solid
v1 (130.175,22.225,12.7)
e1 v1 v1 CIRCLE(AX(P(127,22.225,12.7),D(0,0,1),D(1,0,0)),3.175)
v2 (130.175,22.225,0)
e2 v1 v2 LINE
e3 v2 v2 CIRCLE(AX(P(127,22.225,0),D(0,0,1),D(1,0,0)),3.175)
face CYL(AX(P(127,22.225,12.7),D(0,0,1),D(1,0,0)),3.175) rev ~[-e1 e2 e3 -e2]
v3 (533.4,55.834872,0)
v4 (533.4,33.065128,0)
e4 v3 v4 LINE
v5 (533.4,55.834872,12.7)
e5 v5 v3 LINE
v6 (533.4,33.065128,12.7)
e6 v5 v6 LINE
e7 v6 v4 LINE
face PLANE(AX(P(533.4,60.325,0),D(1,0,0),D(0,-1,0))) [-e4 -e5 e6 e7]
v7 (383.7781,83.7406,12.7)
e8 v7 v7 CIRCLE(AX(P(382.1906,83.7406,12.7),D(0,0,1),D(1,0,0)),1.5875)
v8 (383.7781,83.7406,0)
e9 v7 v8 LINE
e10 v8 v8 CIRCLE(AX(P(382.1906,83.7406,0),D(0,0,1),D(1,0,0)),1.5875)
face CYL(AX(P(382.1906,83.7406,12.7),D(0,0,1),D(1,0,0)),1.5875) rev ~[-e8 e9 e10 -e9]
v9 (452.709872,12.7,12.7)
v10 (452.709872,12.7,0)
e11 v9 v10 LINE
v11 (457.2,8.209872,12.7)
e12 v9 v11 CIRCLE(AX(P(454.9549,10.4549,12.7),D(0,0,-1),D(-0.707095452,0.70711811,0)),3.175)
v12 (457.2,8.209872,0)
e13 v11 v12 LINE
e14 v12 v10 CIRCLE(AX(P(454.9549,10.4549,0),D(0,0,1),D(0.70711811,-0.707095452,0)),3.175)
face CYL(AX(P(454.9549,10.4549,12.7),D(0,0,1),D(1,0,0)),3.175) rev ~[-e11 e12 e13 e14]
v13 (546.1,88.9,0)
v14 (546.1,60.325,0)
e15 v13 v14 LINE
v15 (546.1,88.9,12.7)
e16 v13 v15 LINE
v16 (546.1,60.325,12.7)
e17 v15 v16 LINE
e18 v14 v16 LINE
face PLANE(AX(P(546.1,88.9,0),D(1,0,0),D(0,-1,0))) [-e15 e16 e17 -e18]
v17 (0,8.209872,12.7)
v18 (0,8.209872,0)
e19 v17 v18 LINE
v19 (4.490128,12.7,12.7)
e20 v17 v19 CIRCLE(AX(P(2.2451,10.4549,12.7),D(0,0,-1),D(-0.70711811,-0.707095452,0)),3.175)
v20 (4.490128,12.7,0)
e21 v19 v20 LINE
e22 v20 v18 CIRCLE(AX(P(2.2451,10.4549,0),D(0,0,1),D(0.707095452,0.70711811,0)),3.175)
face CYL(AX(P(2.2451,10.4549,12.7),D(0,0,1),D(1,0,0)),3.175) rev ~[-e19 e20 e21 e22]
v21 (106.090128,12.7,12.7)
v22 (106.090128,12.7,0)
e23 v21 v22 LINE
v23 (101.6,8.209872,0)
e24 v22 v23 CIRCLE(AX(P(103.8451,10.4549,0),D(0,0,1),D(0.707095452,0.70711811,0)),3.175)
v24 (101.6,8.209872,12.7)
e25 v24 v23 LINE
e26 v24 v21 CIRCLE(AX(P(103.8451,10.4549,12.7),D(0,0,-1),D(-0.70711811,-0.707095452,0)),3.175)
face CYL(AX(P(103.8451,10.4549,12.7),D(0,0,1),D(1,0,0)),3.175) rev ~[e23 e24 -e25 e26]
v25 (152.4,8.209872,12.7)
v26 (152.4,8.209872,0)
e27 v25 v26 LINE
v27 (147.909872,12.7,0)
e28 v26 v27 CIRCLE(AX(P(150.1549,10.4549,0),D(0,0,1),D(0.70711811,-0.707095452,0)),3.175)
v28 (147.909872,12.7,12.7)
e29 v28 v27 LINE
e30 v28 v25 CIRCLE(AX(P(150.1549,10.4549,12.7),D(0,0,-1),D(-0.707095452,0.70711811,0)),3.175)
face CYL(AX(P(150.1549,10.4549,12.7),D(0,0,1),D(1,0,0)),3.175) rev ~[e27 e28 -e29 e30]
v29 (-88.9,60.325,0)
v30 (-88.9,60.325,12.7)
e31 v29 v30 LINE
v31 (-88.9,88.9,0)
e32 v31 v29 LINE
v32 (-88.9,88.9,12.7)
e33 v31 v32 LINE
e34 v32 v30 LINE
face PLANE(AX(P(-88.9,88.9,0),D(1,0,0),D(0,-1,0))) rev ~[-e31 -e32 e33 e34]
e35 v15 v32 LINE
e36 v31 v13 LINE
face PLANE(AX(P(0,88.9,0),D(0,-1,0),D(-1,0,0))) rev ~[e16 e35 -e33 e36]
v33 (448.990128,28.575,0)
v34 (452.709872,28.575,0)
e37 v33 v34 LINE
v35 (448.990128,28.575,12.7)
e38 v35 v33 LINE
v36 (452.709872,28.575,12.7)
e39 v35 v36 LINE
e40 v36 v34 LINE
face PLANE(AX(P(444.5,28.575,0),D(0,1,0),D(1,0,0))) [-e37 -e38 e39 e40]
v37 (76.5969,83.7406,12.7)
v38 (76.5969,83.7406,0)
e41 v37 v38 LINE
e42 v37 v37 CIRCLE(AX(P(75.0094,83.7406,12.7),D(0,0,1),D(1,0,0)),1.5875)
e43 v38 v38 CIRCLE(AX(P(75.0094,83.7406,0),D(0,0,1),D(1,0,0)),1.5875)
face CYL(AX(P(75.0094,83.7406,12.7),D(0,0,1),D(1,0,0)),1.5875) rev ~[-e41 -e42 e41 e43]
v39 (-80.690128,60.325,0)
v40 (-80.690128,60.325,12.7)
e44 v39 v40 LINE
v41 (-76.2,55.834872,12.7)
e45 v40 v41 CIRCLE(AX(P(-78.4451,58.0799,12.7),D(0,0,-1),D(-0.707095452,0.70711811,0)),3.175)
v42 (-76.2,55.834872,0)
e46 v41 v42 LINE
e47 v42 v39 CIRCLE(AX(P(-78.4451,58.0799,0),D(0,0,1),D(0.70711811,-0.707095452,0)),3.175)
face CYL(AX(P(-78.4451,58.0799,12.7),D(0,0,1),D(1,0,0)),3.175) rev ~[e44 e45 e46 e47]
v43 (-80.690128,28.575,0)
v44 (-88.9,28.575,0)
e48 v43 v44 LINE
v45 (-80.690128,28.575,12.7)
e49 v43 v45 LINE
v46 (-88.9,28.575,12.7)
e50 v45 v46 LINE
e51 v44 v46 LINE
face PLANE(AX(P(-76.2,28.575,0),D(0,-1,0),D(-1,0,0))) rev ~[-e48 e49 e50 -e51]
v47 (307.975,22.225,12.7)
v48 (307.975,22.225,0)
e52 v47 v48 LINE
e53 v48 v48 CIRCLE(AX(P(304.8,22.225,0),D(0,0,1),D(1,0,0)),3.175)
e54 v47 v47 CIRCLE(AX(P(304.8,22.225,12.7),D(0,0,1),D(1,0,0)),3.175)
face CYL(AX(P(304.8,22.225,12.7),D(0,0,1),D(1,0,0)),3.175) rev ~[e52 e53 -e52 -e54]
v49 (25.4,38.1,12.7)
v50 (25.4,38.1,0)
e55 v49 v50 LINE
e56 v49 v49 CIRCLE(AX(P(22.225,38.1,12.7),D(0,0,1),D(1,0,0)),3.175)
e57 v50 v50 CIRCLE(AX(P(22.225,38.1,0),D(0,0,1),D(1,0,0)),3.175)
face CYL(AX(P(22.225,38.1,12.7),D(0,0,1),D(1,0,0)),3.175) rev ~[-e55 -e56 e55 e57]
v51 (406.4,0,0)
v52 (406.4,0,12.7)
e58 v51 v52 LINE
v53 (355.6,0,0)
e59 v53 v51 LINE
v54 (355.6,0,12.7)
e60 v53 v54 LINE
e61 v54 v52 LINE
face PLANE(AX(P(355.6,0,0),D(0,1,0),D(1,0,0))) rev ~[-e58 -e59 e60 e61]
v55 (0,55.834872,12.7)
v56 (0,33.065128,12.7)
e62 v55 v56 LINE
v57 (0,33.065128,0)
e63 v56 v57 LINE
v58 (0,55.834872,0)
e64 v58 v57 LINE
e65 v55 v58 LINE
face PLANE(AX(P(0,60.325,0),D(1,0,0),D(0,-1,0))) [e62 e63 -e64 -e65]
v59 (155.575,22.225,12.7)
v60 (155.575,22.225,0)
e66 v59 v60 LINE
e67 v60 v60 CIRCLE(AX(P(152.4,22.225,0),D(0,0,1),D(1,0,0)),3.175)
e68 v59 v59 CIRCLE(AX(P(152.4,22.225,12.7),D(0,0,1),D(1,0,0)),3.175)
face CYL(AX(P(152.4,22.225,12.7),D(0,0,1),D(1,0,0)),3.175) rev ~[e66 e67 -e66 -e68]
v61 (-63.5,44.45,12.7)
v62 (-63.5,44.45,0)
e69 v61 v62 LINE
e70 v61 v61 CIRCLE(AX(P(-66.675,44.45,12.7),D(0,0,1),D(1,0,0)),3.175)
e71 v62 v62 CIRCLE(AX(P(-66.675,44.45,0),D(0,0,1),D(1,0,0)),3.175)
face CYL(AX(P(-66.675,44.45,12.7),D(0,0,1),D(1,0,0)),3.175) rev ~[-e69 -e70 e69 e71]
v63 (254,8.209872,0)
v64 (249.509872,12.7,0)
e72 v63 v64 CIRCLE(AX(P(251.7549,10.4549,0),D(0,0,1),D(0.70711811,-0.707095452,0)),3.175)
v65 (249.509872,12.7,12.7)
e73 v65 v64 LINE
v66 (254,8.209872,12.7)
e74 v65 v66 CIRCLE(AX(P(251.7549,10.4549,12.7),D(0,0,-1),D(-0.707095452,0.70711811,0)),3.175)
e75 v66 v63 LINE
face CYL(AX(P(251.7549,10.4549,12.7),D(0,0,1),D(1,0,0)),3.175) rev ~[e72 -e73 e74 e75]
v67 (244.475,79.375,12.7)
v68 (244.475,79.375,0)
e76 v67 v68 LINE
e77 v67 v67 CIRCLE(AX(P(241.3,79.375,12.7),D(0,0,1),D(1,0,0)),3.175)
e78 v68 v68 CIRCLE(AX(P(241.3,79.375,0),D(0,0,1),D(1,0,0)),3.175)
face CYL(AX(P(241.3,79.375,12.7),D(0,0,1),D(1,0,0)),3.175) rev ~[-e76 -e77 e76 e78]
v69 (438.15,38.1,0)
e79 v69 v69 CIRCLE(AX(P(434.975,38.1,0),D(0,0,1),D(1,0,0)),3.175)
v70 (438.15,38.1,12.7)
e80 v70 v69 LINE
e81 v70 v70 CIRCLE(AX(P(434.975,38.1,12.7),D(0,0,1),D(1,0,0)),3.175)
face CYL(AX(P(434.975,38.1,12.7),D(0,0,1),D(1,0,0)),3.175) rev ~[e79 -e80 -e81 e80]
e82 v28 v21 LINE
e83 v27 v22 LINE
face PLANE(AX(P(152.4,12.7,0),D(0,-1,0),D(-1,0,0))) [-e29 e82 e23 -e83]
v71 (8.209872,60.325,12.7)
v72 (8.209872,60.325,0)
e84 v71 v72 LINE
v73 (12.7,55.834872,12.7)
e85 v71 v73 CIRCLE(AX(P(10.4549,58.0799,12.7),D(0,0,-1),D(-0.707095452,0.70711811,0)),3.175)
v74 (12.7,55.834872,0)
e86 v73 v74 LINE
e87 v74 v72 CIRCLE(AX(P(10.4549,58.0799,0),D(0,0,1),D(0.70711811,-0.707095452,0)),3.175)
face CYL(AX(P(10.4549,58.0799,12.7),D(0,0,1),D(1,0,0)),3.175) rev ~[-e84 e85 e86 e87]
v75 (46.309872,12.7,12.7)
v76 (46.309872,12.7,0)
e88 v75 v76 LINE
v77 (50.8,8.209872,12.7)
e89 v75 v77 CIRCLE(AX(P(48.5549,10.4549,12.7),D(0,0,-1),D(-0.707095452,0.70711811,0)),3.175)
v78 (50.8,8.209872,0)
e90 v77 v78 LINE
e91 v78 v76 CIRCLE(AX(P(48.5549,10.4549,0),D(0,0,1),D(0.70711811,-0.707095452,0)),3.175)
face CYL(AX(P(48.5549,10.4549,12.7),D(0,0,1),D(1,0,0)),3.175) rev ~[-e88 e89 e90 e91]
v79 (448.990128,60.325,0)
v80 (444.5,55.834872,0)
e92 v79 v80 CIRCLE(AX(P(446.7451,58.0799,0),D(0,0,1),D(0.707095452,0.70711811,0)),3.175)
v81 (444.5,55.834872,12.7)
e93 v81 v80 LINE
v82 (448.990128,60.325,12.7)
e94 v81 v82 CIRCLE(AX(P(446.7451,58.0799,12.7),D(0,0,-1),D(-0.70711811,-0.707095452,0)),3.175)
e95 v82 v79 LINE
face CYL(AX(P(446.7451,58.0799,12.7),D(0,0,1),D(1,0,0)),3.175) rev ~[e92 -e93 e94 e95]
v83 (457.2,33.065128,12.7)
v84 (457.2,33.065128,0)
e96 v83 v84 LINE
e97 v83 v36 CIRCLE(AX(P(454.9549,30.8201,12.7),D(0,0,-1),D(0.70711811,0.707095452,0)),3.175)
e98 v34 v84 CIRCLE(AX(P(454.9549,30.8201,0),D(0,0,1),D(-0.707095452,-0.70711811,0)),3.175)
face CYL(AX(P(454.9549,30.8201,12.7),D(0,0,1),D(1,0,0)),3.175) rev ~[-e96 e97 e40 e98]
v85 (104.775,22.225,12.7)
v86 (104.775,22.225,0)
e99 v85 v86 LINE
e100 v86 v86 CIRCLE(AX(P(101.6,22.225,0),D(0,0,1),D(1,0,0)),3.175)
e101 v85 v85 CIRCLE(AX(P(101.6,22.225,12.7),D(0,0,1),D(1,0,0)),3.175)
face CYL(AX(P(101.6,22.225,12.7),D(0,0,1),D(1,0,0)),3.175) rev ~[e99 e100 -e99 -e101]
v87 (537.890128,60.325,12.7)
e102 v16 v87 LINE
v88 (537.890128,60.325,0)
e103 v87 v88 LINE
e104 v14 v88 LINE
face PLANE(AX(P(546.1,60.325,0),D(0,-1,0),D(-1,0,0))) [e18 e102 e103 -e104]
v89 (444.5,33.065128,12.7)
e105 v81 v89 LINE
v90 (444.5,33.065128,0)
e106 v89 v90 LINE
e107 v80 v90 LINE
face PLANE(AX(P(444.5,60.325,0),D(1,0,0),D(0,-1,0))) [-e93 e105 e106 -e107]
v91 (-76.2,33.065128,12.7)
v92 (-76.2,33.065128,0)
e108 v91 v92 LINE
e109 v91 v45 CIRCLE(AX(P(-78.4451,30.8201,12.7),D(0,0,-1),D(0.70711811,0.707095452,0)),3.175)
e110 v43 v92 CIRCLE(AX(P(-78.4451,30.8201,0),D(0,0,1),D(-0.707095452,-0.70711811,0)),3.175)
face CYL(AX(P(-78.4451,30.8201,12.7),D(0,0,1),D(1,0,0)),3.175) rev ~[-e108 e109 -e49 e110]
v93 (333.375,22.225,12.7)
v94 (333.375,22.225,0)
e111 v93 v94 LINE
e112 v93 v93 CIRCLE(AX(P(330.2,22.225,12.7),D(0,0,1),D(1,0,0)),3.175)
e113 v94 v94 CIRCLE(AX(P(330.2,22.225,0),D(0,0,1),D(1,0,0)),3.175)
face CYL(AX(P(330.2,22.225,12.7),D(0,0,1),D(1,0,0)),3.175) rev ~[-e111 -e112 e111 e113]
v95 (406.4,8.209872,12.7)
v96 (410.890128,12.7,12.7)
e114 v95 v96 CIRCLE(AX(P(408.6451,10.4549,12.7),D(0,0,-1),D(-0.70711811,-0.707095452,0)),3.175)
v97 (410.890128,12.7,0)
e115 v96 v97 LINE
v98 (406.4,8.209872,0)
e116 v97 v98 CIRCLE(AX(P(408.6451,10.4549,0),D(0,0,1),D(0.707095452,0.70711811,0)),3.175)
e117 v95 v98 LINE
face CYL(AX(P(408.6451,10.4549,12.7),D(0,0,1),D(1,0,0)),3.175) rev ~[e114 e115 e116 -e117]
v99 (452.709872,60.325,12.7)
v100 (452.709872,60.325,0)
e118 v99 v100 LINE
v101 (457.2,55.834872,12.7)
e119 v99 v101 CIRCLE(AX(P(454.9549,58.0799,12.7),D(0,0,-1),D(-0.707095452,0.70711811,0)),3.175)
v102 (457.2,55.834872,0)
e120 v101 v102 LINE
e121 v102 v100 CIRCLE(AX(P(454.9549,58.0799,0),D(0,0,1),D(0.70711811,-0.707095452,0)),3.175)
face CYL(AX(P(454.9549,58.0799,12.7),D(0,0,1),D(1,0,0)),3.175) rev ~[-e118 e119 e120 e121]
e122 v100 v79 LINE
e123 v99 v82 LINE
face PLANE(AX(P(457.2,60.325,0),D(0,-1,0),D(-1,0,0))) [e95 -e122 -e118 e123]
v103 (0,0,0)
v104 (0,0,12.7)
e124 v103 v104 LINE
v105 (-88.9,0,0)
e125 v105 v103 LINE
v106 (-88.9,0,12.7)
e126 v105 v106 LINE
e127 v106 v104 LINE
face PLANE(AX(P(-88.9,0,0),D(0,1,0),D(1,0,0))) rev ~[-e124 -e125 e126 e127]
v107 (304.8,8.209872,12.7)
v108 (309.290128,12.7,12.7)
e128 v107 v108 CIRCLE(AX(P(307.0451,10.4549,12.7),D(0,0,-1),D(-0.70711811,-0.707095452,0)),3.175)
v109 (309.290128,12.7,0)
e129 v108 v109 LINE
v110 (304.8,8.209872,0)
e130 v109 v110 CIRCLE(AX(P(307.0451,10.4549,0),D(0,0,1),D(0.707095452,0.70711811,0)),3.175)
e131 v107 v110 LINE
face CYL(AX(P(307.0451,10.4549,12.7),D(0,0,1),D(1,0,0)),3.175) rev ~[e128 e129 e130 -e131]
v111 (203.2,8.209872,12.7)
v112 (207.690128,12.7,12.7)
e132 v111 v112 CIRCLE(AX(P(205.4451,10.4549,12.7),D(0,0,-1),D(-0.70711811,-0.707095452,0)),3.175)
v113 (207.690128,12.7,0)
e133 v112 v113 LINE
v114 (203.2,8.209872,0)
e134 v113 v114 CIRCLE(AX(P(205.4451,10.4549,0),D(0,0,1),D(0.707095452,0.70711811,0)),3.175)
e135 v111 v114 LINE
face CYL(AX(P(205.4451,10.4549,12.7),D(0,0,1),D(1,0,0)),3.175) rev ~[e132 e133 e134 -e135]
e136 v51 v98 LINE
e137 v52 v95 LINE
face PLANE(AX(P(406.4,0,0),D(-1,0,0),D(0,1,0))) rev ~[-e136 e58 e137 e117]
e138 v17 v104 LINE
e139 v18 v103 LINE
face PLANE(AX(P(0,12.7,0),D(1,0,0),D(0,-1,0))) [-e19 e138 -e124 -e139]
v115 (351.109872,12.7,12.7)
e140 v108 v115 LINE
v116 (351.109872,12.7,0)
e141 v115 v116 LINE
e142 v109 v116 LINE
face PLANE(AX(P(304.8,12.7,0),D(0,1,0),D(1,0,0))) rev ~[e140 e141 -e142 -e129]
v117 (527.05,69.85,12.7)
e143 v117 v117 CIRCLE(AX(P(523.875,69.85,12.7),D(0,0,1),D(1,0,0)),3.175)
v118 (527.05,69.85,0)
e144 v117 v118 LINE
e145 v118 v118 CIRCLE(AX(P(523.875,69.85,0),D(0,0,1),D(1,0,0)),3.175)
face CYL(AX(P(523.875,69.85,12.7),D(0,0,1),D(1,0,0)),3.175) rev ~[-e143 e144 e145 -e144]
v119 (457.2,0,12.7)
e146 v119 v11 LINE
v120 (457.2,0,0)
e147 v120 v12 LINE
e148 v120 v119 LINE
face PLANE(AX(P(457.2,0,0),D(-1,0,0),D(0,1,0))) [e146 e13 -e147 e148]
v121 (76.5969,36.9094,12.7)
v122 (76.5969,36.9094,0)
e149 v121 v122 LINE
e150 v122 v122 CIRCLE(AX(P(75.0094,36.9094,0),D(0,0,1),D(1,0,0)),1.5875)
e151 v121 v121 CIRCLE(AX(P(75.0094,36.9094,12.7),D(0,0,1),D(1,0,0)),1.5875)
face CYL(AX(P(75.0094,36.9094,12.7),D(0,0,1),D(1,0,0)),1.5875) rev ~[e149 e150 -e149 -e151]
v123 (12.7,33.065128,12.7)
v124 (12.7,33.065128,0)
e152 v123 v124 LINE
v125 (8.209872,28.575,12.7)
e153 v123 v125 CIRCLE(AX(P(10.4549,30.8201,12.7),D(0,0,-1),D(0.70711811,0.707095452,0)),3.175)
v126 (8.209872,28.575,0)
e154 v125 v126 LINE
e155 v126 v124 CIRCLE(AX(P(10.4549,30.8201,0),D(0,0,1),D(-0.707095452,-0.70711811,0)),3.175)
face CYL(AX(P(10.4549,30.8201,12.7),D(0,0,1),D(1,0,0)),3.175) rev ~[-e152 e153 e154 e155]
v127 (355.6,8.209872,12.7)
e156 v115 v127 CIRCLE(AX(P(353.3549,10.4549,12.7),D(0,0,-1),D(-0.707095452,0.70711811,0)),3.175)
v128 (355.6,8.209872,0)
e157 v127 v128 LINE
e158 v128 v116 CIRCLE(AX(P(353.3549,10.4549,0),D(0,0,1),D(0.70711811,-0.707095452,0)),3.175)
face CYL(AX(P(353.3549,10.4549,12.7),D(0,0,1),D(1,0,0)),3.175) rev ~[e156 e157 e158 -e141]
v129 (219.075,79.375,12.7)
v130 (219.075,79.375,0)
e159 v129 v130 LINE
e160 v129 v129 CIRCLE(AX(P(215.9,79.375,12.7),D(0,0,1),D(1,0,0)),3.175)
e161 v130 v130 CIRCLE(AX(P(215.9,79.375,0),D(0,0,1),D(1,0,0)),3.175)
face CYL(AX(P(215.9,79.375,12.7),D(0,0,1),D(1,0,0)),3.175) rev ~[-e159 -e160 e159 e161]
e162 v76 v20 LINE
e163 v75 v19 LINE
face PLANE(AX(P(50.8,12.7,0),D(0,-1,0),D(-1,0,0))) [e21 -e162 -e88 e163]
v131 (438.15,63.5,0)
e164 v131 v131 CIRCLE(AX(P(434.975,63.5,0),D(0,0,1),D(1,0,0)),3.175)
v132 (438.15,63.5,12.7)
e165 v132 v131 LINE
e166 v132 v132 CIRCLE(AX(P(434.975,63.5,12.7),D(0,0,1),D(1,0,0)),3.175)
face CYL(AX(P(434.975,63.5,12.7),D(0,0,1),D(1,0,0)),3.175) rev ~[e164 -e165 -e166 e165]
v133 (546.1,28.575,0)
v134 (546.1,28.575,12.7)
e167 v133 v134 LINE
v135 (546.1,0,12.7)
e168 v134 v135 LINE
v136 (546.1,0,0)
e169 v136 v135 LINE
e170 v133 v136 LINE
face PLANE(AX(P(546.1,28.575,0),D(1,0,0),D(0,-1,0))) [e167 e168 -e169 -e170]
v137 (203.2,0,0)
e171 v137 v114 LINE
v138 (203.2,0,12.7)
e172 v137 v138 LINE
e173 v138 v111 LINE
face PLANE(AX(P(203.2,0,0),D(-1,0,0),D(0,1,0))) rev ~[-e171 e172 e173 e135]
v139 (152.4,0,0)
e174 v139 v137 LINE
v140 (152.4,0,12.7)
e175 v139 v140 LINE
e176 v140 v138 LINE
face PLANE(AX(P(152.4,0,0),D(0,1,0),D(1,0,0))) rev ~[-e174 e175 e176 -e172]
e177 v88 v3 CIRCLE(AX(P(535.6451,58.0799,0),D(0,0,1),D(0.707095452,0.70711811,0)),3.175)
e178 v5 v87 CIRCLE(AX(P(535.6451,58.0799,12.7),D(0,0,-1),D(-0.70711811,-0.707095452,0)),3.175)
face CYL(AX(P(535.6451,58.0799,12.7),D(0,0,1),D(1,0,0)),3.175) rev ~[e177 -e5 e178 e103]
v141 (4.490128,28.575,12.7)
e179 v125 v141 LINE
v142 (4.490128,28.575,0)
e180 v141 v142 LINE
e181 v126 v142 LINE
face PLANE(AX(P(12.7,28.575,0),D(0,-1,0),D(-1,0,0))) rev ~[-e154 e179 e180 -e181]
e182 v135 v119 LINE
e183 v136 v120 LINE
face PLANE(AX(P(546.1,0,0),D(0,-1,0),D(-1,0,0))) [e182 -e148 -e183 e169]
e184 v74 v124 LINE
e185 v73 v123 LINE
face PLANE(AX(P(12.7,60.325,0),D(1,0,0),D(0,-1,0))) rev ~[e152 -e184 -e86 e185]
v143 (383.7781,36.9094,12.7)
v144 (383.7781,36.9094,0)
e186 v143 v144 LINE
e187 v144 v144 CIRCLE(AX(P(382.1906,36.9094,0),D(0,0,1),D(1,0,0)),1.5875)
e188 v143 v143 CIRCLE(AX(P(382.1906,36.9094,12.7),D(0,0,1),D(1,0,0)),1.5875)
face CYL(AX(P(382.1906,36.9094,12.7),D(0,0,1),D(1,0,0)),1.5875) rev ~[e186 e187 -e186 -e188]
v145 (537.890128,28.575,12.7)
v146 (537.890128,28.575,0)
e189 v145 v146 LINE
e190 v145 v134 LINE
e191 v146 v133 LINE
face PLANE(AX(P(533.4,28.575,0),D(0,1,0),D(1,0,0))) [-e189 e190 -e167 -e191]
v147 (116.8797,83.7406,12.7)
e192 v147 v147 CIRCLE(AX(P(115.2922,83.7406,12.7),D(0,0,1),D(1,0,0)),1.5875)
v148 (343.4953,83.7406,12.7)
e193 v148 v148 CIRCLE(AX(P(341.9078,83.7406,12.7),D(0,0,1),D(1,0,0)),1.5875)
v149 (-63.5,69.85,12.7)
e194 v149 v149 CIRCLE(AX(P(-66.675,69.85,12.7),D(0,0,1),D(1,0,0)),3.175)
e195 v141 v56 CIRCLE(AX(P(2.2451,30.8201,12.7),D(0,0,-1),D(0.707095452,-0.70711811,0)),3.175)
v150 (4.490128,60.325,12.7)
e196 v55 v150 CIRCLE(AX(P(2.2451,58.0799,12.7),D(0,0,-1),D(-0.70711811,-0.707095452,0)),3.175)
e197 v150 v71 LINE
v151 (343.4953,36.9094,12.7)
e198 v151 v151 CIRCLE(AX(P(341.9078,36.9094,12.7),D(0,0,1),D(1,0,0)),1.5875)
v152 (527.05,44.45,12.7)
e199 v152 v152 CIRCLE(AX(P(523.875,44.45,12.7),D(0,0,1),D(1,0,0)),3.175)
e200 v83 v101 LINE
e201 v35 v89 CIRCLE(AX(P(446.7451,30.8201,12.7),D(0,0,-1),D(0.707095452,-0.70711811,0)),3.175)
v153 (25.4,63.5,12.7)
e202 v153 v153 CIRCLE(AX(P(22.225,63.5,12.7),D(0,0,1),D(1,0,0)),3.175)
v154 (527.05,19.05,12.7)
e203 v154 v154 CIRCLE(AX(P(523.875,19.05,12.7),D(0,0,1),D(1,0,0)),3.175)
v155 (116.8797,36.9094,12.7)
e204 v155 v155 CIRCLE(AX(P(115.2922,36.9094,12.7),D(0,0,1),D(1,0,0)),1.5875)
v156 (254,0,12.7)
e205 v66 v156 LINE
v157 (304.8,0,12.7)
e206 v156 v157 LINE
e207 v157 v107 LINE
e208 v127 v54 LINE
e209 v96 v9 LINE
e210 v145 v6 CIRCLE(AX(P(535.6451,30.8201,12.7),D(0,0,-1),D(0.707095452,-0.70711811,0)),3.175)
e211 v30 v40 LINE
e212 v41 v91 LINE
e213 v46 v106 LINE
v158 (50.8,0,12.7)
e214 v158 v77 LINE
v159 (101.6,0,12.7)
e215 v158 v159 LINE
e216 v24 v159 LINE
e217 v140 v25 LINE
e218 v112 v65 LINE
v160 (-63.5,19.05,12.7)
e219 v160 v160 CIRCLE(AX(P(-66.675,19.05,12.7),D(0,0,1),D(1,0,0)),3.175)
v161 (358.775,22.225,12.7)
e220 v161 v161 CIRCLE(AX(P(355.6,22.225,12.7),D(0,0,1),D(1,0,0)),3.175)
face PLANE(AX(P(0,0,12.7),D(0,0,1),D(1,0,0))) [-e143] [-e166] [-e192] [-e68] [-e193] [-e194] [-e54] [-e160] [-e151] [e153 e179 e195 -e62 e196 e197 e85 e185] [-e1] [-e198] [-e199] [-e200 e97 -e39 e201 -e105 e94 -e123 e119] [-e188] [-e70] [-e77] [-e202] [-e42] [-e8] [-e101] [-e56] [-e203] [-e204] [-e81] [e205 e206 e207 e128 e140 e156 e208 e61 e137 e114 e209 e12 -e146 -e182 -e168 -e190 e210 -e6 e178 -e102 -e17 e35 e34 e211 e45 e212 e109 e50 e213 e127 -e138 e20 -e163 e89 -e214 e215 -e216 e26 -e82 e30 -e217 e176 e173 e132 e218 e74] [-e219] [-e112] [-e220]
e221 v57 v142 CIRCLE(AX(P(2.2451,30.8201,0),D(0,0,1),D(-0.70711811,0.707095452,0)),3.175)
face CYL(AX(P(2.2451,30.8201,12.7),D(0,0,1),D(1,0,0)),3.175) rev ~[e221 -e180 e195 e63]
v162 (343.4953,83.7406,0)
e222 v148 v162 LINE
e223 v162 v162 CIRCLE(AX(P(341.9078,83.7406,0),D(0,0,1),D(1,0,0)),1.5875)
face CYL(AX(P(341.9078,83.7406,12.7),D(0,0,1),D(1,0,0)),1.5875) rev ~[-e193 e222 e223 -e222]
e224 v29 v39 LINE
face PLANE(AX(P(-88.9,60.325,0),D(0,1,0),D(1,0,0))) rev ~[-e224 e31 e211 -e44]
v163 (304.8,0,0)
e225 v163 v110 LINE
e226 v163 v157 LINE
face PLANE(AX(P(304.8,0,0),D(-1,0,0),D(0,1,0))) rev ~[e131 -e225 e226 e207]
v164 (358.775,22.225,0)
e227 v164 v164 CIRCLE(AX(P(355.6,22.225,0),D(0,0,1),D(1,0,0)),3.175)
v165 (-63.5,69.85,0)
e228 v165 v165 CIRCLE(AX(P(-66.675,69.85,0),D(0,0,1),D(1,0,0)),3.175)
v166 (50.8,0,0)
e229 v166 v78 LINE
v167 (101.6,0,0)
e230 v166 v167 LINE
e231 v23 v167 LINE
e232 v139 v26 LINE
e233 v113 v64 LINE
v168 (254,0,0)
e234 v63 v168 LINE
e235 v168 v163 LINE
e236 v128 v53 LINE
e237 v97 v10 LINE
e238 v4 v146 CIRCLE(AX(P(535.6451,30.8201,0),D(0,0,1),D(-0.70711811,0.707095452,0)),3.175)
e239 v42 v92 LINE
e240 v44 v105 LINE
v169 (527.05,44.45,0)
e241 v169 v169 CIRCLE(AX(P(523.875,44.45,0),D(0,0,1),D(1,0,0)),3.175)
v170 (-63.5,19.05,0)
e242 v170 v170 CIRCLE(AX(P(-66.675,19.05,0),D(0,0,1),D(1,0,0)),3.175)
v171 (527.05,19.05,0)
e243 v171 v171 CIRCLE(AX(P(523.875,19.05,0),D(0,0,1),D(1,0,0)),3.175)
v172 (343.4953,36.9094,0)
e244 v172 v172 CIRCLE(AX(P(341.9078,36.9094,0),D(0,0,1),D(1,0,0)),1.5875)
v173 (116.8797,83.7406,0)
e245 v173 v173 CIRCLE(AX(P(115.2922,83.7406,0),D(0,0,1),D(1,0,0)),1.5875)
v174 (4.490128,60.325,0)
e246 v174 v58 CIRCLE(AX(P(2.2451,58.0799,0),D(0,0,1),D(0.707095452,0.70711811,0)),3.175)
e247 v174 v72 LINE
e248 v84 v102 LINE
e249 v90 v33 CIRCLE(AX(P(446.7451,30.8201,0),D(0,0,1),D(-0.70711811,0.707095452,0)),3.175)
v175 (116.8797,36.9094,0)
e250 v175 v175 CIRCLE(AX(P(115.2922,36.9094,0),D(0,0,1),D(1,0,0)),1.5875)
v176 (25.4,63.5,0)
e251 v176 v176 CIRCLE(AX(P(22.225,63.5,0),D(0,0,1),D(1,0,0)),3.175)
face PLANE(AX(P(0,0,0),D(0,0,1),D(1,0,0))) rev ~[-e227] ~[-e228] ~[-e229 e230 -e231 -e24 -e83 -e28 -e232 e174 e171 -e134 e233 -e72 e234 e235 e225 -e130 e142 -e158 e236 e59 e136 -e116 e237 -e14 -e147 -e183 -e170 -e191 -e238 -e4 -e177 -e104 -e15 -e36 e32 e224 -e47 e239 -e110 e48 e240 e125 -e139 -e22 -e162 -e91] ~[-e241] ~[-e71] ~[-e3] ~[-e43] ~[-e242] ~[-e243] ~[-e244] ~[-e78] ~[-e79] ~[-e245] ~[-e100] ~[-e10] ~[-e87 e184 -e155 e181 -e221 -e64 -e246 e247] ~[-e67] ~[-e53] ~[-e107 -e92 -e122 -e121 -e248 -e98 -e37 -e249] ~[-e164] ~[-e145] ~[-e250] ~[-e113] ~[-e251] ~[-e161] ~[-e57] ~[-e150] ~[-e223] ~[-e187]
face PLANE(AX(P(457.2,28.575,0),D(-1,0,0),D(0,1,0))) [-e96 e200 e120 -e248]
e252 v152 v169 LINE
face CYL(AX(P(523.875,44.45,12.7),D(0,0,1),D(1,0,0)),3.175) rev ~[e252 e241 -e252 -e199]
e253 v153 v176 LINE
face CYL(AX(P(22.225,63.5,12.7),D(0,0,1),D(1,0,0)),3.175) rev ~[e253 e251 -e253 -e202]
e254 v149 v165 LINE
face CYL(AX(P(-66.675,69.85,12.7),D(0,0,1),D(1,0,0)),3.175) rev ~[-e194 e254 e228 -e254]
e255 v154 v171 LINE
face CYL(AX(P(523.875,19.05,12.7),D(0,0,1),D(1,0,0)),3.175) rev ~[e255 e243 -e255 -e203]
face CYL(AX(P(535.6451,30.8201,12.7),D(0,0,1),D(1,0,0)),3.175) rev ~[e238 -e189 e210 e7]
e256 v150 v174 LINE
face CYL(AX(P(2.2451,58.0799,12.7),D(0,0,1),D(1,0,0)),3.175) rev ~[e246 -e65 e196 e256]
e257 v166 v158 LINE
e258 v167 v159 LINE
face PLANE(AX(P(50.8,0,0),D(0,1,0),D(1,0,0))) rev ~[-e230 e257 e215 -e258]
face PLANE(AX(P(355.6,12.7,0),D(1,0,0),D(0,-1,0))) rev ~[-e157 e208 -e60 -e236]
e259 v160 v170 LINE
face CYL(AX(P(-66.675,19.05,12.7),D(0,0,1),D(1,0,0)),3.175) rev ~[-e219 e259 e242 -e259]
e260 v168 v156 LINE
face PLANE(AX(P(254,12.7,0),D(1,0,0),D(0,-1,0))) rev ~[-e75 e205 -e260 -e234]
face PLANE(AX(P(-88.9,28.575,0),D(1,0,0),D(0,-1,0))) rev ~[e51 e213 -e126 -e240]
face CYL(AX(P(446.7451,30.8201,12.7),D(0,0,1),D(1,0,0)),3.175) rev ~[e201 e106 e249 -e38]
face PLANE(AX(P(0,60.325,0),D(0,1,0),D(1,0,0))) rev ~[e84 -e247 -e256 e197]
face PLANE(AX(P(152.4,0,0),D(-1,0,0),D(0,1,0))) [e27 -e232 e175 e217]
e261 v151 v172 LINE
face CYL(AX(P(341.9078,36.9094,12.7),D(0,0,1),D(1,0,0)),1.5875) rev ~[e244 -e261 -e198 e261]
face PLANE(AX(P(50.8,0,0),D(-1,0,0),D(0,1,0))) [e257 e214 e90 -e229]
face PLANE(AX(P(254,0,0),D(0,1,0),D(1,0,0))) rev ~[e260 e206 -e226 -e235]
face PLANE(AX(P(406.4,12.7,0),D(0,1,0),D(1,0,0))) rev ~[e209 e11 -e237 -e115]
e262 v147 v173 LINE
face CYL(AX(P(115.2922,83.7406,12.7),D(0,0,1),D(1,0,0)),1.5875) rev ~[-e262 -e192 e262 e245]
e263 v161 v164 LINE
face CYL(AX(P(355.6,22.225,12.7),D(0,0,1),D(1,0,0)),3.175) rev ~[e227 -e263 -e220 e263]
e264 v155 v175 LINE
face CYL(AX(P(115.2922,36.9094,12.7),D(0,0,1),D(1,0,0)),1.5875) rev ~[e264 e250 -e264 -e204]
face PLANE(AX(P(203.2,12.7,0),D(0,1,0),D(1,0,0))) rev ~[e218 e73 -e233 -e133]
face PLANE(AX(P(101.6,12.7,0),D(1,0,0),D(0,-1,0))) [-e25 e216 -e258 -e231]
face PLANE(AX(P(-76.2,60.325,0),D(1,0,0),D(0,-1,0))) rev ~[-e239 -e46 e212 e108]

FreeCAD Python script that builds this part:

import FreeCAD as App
import Part
import Sketcher
Q = App.Units.Quantity


def add_polygon(sketch, points):
    """Adds a closed chain of lines whose ends are joined by coincident constraints."""
    first, n = sketch.GeometryCount, len(points)
    for a, b in zip(points, points[1:] + points[:1]):
        sketch.addGeometry(Part.LineSegment(App.Vector(*a, 0), App.Vector(*b, 0)), False)
    for i in range(n):
        sketch.addConstraint(Sketcher.Constraint("Coincident", first + i, 2, first + (i + 1) % n, 1))

doc = App.newDocument("Part")
params = doc.addObject("Spreadsheet::Sheet", "Params")
for row, (alias, value) in enumerate([
    ("sketch1_width", "2 in"),
    ("sketch1_width2", "3.5 in"),
    ("sketch1_width3", "0.5 in"),
    ("sketch1_height", "1.25 in"),
    ("pad1_length", "0.5 in"),
    ("sketch2_diameter", "0.25 in"),
    ("pocket1_length", "0.5 in"),
    ("sketch3_diameter", "0.25 in"),
    ("pocket2_length", "0.5 in"),
    ("sketch4_diameter", "0.125 in"),
    ("pocket3_length", "0.5 in"),
    ("sketch5_diameter", "0.25 in"),
    ("pocket4_length", "0.5 in"),
], start=1):
    params.set(f"A{row}", alias)
    params.set(f"B{row}", "=" + value)
    params.setAlias(f"B{row}", alias)

body = doc.addObject("PartDesign::Body", "Body")

# Sketch on XY plane
sketch1 = body.newObject("Sketcher::SketchObject", "Sketch")
sketch1.AttachmentSupport = (doc.getObject("XY_Plane"), [""])
sketch1.MapMode = "FlatFace"
add_polygon(sketch1, [(-89, 0), (0, 0), (0, 13), (51, 13), (51, 0), (102, 0), (102, 13), (152, 13), (152, 0), (203, 0), (203, 13), (254, 13), (254, 0), (305, 0), (305, 13), (356, 13), (356, 0), (406, 0), (406, 13), (457, 13), (457, 0), (546, 0), (546, 29), (533, 29), (533, 60), (546, 60), (546, 89), (-89, 89), (-89, 60), (-76, 60), (-76, 29), (-89, 29)])  # lines 0-31
add_polygon(sketch1, [(0, 29), (0, 60), (13, 60), (13, 29)])  # lines 32-35
add_polygon(sketch1, [(444, 60), (457, 60), (457, 29), (444, 29)])  # lines 36-39
sketch1.addConstraint(Sketcher.Constraint("Horizontal", 0))
sketch1.addConstraint(Sketcher.Constraint("Vertical", 1))
sketch1.addConstraint(Sketcher.Constraint("Horizontal", 2))
sketch1.addConstraint(Sketcher.Constraint("Vertical", 3))
sketch1.addConstraint(Sketcher.Constraint("Horizontal", 4))
sketch1.addConstraint(Sketcher.Constraint("Vertical", 5))
sketch1.addConstraint(Sketcher.Constraint("Horizontal", 6))
sketch1.addConstraint(Sketcher.Constraint("Vertical", 7))
sketch1.addConstraint(Sketcher.Constraint("Horizontal", 8))
sketch1.addConstraint(Sketcher.Constraint("Vertical", 9))
sketch1.addConstraint(Sketcher.Constraint("Horizontal", 10))
sketch1.addConstraint(Sketcher.Constraint("Vertical", 11))
sketch1.addConstraint(Sketcher.Constraint("Horizontal", 12))
sketch1.addConstraint(Sketcher.Constraint("Vertical", 13))
sketch1.addConstraint(Sketcher.Constraint("Horizontal", 14))
sketch1.addConstraint(Sketcher.Constraint("Vertical", 15))
sketch1.addConstraint(Sketcher.Constraint("Horizontal", 16))
sketch1.addConstraint(Sketcher.Constraint("Vertical", 17))
sketch1.addConstraint(Sketcher.Constraint("Horizontal", 18))
sketch1.addConstraint(Sketcher.Constraint("Vertical", 19))
sketch1.addConstraint(Sketcher.Constraint("Horizontal", 20))
sketch1.addConstraint(Sketcher.Constraint("Vertical", 21))
sketch1.addConstraint(Sketcher.Constraint("Horizontal", 22))
sketch1.addConstraint(Sketcher.Constraint("Vertical", 23))
sketch1.addConstraint(Sketcher.Constraint("Horizontal", 24))
sketch1.addConstraint(Sketcher.Constraint("Vertical", 25))
sketch1.addConstraint(Sketcher.Constraint("Horizontal", 26))
sketch1.addConstraint(Sketcher.Constraint("Vertical", 27))
sketch1.addConstraint(Sketcher.Constraint("Horizontal", 28))
sketch1.addConstraint(Sketcher.Constraint("Vertical", 29))
sketch1.addConstraint(Sketcher.Constraint("Horizontal", 30))
sketch1.addConstraint(Sketcher.Constraint("Vertical", 31))
sketch1.addConstraint(Sketcher.Constraint("Vertical", 32))
sketch1.addConstraint(Sketcher.Constraint("Horizontal", 33))
sketch1.addConstraint(Sketcher.Constraint("Vertical", 34))
sketch1.addConstraint(Sketcher.Constraint("Horizontal", 35))
sketch1.addConstraint(Sketcher.Constraint("Horizontal", 36))
sketch1.addConstraint(Sketcher.Constraint("Vertical", 37))
sketch1.addConstraint(Sketcher.Constraint("Horizontal", 38))
sketch1.addConstraint(Sketcher.Constraint("Vertical", 39))
sketch1.addConstraint(Sketcher.Constraint("Coincident", 0, 2, -1, 1))
sketch1.addConstraint(Sketcher.Constraint("PointOnObject", 3, 2, -1))
sketch1.addConstraint(Sketcher.Constraint("PointOnObject", 7, 2, -1))
sketch1.addConstraint(Sketcher.Constraint("PointOnObject", 11, 2, -1))
sketch1.addConstraint(Sketcher.Constraint("PointOnObject", 15, 2, -1))
sketch1.addConstraint(Sketcher.Constraint("PointOnObject", 19, 2, -1))
sketch1.addConstraint(Sketcher.Constraint("PointOnObject", 32, 2, -2))
sketch1.addConstraint(Sketcher.Constraint("Horizontal", 2, 2, 5, 2))
sketch1.addConstraint(Sketcher.Constraint("Horizontal", 6, 2, 9, 2))
sketch1.addConstraint(Sketcher.Constraint("Horizontal", 10, 2, 13, 2))
sketch1.addConstraint(Sketcher.Constraint("Horizontal", 14, 2, 17, 2))
sketch1.addConstraint(Sketcher.Constraint("Horizontal", 24, 2, 27, 2))
sketch1.addConstraint(Sketcher.Constraint("Horizontal", 22, 2, 29, 2))
sketch1.addConstraint(Sketcher.Constraint("Horizontal", 28, 2, 32, 2))
sketch1.addConstraint(Sketcher.Constraint("Horizontal", 30, 2, 34, 2))
sketch1.addConstraint(Sketcher.Constraint("Horizontal", 33, 2, 36, 2))
sketch1.addConstraint(Sketcher.Constraint("Horizontal", 35, 2, 37, 2))
sketch1.addConstraint(Sketcher.Constraint("Vertical", 21, 2, 24, 2))
sketch1.addConstraint(Sketcher.Constraint("Vertical", 27, 2, 30, 2))
sketch1.addConstraint(Sketcher.Constraint("Vertical", 19, 2, 36, 2))
sketch1.addConstraint(Sketcher.Constraint("Equal", 2, 4))
sketch1.addConstraint(Sketcher.Constraint("Equal", 4, 6))
sketch1.addConstraint(Sketcher.Constraint("Equal", 6, 8))
sketch1.addConstraint(Sketcher.Constraint("Equal", 8, 10))
sketch1.addConstraint(Sketcher.Constraint("Equal", 10, 12))
sketch1.addConstraint(Sketcher.Constraint("Equal", 12, 14))
sketch1.addConstraint(Sketcher.Constraint("Equal", 14, 16))
sketch1.addConstraint(Sketcher.Constraint("Equal", 16, 18))
sketch1.addConstraint(Sketcher.Constraint("Equal", 0, 20))
sketch1.addConstraint(Sketcher.Constraint("Equal", 24, 28))
sketch1.addConstraint(Sketcher.Constraint("Equal", 30, 33))
sketch1.addConstraint(Sketcher.Constraint("Equal", 35, 36))
sketch1.addConstraint(Sketcher.Constraint("Equal", 38, 1))
sketch1.addConstraint(Sketcher.Constraint("Equal", 21, 25))
sketch1.addConstraint(Sketcher.Constraint("DistanceX", 2, 1, 2, 2, Q("2 in")))
sketch1.addConstraint(Sketcher.Constraint("DistanceX", 0, 1, 0, 2, Q("3.5 in")))
sketch1.addConstraint(Sketcher.Constraint("DistanceX", 22, 2, 22, 1, Q("0.5 in")))
sketch1.addConstraint(Sketcher.Constraint("DistanceY", 23, 1, 23, 2, Q("1.25 in")))
sketch1.addConstraint(Sketcher.Constraint("DistanceY", -1, 1, 25, 2, Q("3.5 in")))
sketch1.setExpression("Constraints[114]", "Params.sketch1_width")
sketch1.setExpression("Constraints[115]", "Params.sketch1_width2")
sketch1.setExpression("Constraints[116]", "Params.sketch1_width3")
sketch1.setExpression("Constraints[117]", "Params.sketch1_height")
pad1 = body.newObject("PartDesign::Pad", "Pad")
pad1.Profile = sketch1
pad1.setExpression("Length", "Params.pad1_length")

# Sketch on XY plane
sketch2 = body.newObject("Sketcher::SketchObject", "Sketch001")
sketch2.AttachmentSupport = (doc.getObject("XY_Plane"), [""])
sketch2.MapMode = "FlatFace"
sketch2.AttachmentOffset = App.Placement(App.Vector(0, 0, 0.5 * 25.4), App.Rotation())
sketch2.addGeometry(Part.Circle(App.Vector(-78.4, 58.1, 0), App.Vector(0, 0, 1), 3.2), False)
sketch2.addGeometry(Part.Circle(App.Vector(-78.4, 30.8, 0), App.Vector(0, 0, 1), 3.2), False)
sketch2.addGeometry(Part.Circle(App.Vector(2.2, 30.8, 0), App.Vector(0, 0, 1), 3.2), False)
sketch2.addGeometry(Part.Circle(App.Vector(2.2, 58.1, 0), App.Vector(0, 0, 1), 3.2), False)
sketch2.addGeometry(Part.Circle(App.Vector(10.5, 30.8, 0), App.Vector(0, 0, 1), 3.2), False)
sketch2.addGeometry(Part.Circle(App.Vector(10.5, 58.1, 0), App.Vector(0, 0, 1), 3.2), False)
sketch2.addGeometry(Part.Circle(App.Vector(2.2, 10.5, 0), App.Vector(0, 0, 1), 3.2), False)
sketch2.addGeometry(Part.Circle(App.Vector(48.6, 10.5, 0), App.Vector(0, 0, 1), 3.2), False)
sketch2.addGeometry(Part.Circle(App.Vector(103.8, 10.5, 0), App.Vector(0, 0, 1), 3.2), False)
sketch2.addGeometry(Part.Circle(App.Vector(150.2, 10.5, 0), App.Vector(0, 0, 1), 3.2), False)
sketch2.addGeometry(Part.Circle(App.Vector(205.4, 10.5, 0), App.Vector(0, 0, 1), 3.2), False)
sketch2.addGeometry(Part.Circle(App.Vector(251.8, 10.5, 0), App.Vector(0, 0, 1), 3.2), False)
sketch2.addGeometry(Part.Circle(App.Vector(307, 10.5, 0), App.Vector(0, 0, 1), 3.2), False)
sketch2.addGeometry(Part.Circle(App.Vector(353.4, 10.5, 0), App.Vector(0, 0, 1), 3.2), False)
sketch2.addGeometry(Part.Circle(App.Vector(408.6, 10.5, 0), App.Vector(0, 0, 1), 3.2), False)
sketch2.addGeometry(Part.Circle(App.Vector(455, 10.5, 0), App.Vector(0, 0, 1), 3.2), False)
sketch2.addGeometry(Part.Circle(App.Vector(446.7, 30.8, 0), App.Vector(0, 0, 1), 3.2), False)
sketch2.addGeometry(Part.Circle(App.Vector(446.7, 58.1, 0), App.Vector(0, 0, 1), 3.2), False)
sketch2.addGeometry(Part.Circle(App.Vector(455, 30.8, 0), App.Vector(0, 0, 1), 3.2), False)
sketch2.addGeometry(Part.Circle(App.Vector(455, 58.1, 0), App.Vector(0, 0, 1), 3.2), False)
sketch2.addGeometry(Part.Circle(App.Vector(535.6, 30.8, 0), App.Vector(0, 0, 1), 3.2), False)
sketch2.addGeometry(Part.Circle(App.Vector(535.6, 58.1, 0), App.Vector(0, 0, 1), 3.2), False)
sketch2.addConstraint(Sketcher.Constraint("Equal", 0, 1))
sketch2.addConstraint(Sketcher.Constraint("Equal", 1, 2))
sketch2.addConstraint(Sketcher.Constraint("Equal", 2, 3))
sketch2.addConstraint(Sketcher.Constraint("Equal", 3, 4))
sketch2.addConstraint(Sketcher.Constraint("Equal", 4, 5))
sketch2.addConstraint(Sketcher.Constraint("Equal", 5, 6))
sketch2.addConstraint(Sketcher.Constraint("Equal", 6, 7))
sketch2.addConstraint(Sketcher.Constraint("Equal", 7, 8))
sketch2.addConstraint(Sketcher.Constraint("Equal", 8, 9))
sketch2.addConstraint(Sketcher.Constraint("Equal", 9, 10))
sketch2.addConstraint(Sketcher.Constraint("Equal", 10, 11))
sketch2.addConstraint(Sketcher.Constraint("Equal", 11, 12))
sketch2.addConstraint(Sketcher.Constraint("Equal", 12, 13))
sketch2.addConstraint(Sketcher.Constraint("Equal", 13, 14))
sketch2.addConstraint(Sketcher.Constraint("Equal", 14, 15))
sketch2.addConstraint(Sketcher.Constraint("Equal", 15, 16))
sketch2.addConstraint(Sketcher.Constraint("Equal", 16, 17))
sketch2.addConstraint(Sketcher.Constraint("Equal", 17, 18))
sketch2.addConstraint(Sketcher.Constraint("Equal", 18, 19))
sketch2.addConstraint(Sketcher.Constraint("Equal", 19, 20))
sketch2.addConstraint(Sketcher.Constraint("Equal", 20, 21))
sketch2.addConstraint(Sketcher.Constraint("Horizontal", 1, 3, 2, 3))
sketch2.addConstraint(Sketcher.Constraint("Horizontal", 0, 3, 3, 3))
sketch2.addConstraint(Sketcher.Constraint("Horizontal", 2, 3, 4, 3))
sketch2.addConstraint(Sketcher.Constraint("Horizontal", 3, 3, 5, 3))
sketch2.addConstraint(Sketcher.Constraint("Horizontal", 6, 3, 7, 3))
sketch2.addConstraint(Sketcher.Constraint("Horizontal", 7, 3, 8, 3))
sketch2.addConstraint(Sketcher.Constraint("Horizontal", 8, 3, 9, 3))
sketch2.addConstraint(Sketcher.Constraint("Horizontal", 9, 3, 10, 3))
sketch2.addConstraint(Sketcher.Constraint("Horizontal", 10, 3, 11, 3))
sketch2.addConstraint(Sketcher.Constraint("Horizontal", 11, 3, 12, 3))
sketch2.addConstraint(Sketcher.Constraint("Horizontal", 12, 3, 13, 3))
sketch2.addConstraint(Sketcher.Constraint("Horizontal", 13, 3, 14, 3))
sketch2.addConstraint(Sketcher.Constraint("Horizontal", 14, 3, 15, 3))
sketch2.addConstraint(Sketcher.Constraint("Horizontal", 4, 3, 16, 3))
sketch2.addConstraint(Sketcher.Constraint("Horizontal", 5, 3, 17, 3))
sketch2.addConstraint(Sketcher.Constraint("Horizontal", 16, 3, 18, 3))
sketch2.addConstraint(Sketcher.Constraint("Horizontal", 17, 3, 19, 3))
sketch2.addConstraint(Sketcher.Constraint("Horizontal", 18, 3, 20, 3))
sketch2.addConstraint(Sketcher.Constraint("Horizontal", 19, 3, 21, 3))
sketch2.addConstraint(Sketcher.Constraint("Vertical", 0, 3, 1, 3))
sketch2.addConstraint(Sketcher.Constraint("Vertical", 2, 3, 3, 3))
sketch2.addConstraint(Sketcher.Constraint("Vertical", 4, 3, 5, 3))
sketch2.addConstraint(Sketcher.Constraint("Vertical", 3, 3, 6, 3))
sketch2.addConstraint(Sketcher.Constraint("Vertical", 16, 3, 17, 3))
sketch2.addConstraint(Sketcher.Constraint("Vertical", 15, 3, 18, 3))
sketch2.addConstraint(Sketcher.Constraint("Vertical", 18, 3, 19, 3))
sketch2.addConstraint(Sketcher.Constraint("Vertical", 20, 3, 21, 3))
sketch2.addConstraint(Sketcher.Constraint("Diameter", 0, Q("0.25 in")))
sketch2.addConstraint(Sketcher.Constraint("DistanceX", 6, 3, 8, 3, Q("4 in")))
sketch2.addConstraint(Sketcher.Constraint("DistanceX", 7, 3, 9, 3, Q("4 in")))
sketch2.addConstraint(Sketcher.Constraint("DistanceX", 8, 3, 10, 3, Q("4 in")))
sketch2.addConstraint(Sketcher.Constraint("DistanceX", 9, 3, 11, 3, Q("4 in")))
sketch2.addConstraint(Sketcher.Constraint("DistanceX", 10, 3, 12, 3, Q("4 in")))
sketch2.addConstraint(Sketcher.Constraint("DistanceX", 11, 3, 13, 3, Q("4 in")))
sketch2.addConstraint(Sketcher.Constraint("DistanceX", 12, 3, 14, 3, Q("4 in")))
sketch2.addConstraint(Sketcher.Constraint("DistanceX", 13, 3, 15, 3, Q("4 in")))
sketch2.addConstraint(Sketcher.Constraint("DistanceX", 1, 3, 4, 3, Q("3.5 in")))
sketch2.addConstraint(Sketcher.Constraint("DistanceX", 4, 3, 7, 3, Q("1.5 in")))
sketch2.addConstraint(Sketcher.Constraint("DistanceX", 14, 3, 16, 3, Q("1.5 in")))
sketch2.addConstraint(Sketcher.Constraint("DistanceX", 16, 3, 20, 3, Q("3.5 in")))
sketch2.addConstraint(Sketcher.Constraint("DistanceY", 6, 3, 3, 3, Q("1.875 in")))
sketch2.addConstraint(Sketcher.Constraint("DistanceX", 0, 3, -1, 1, Q("3.0884 in")))
sketch2.addConstraint(Sketcher.Constraint("DistanceY", -1, 1, 0, 3, Q("2.2866 in")))
sketch2.addConstraint(Sketcher.Constraint("DistanceY", -1, 1, 1, 3, Q("1.2134 in")))
sketch2.addConstraint(Sketcher.Constraint("DistanceX", -1, 1, 2, 3, Q("0.0884 in")))
sketch2.setExpression("Constraints[48]", "Params.sketch2_diameter")
pocket1 = body.newObject("PartDesign::Pocket", "Pocket")
pocket1.Profile = sketch2
pocket1.setExpression("Length", "Params.pocket1_length")

# Sketch on XY plane
sketch3 = body.newObject("Sketcher::SketchObject", "Sketch002")
sketch3.AttachmentSupport = (doc.getObject("XY_Plane"), [""])
sketch3.MapMode = "FlatFace"
sketch3.AttachmentOffset = App.Placement(App.Vector(0, 0, 0.5 * 25.4), App.Rotation())
sketch3.addGeometry(Part.Circle(App.Vector(127, 22.2, 0), App.Vector(0, 0, 1), 3.2), False)
sketch3.addGeometry(Part.Circle(App.Vector(101.6, 22.2, 0), App.Vector(0, 0, 1), 3.2), False)
sketch3.addGeometry(Part.Circle(App.Vector(152.4, 22.2, 0), App.Vector(0, 0, 1), 3.2), False)
sketch3.addGeometry(Part.Circle(App.Vector(330.2, 22.2, 0), App.Vector(0, 0, 1), 3.2), False)
sketch3.addGeometry(Part.Circle(App.Vector(304.8, 22.2, 0), App.Vector(0, 0, 1), 3.2), False)
sketch3.addGeometry(Part.Circle(App.Vector(355.6, 22.2, 0), App.Vector(0, 0, 1), 3.2), False)
sketch3.addGeometry(Part.Circle(App.Vector(22.2, 38.1, 0), App.Vector(0, 0, 1), 3.2), False)
sketch3.addGeometry(Part.Circle(App.Vector(22.2, 63.5, 0), App.Vector(0, 0, 1), 3.2), False)
sketch3.addGeometry(Part.Circle(App.Vector(435, 38.1, 0), App.Vector(0, 0, 1), 3.2), False)
sketch3.addGeometry(Part.Circle(App.Vector(435, 63.5, 0), App.Vector(0, 0, 1), 3.2), False)
sketch3.addGeometry(Part.Circle(App.Vector(-66.7, 44.5, 0), App.Vector(0, 0, 1), 3.2), False)
sketch3.addGeometry(Part.Circle(App.Vector(-66.7, 69.8, 0), App.Vector(0, 0, 1), 3.2), False)
sketch3.addGeometry(Part.Circle(App.Vector(-66.7, 19.1, 0), App.Vector(0, 0, 1), 3.2), False)
sketch3.addGeometry(Part.Circle(App.Vector(523.9, 44.5, 0), App.Vector(0, 0, 1), 3.2), False)
sketch3.addGeometry(Part.Circle(App.Vector(523.9, 69.8, 0), App.Vector(0, 0, 1), 3.2), False)
sketch3.addGeometry(Part.Circle(App.Vector(523.9, 19.1, 0), App.Vector(0, 0, 1), 3.2), False)
sketch3.addConstraint(Sketcher.Constraint("Equal", 0, 1))
sketch3.addConstraint(Sketcher.Constraint("Equal", 1, 2))
sketch3.addConstraint(Sketcher.Constraint("Equal", 2, 3))
sketch3.addConstraint(Sketcher.Constraint("Equal", 3, 4))
sketch3.addConstraint(Sketcher.Constraint("Equal", 4, 5))
sketch3.addConstraint(Sketcher.Constraint("Equal", 5, 6))
sketch3.addConstraint(Sketcher.Constraint("Equal", 6, 7))
sketch3.addConstraint(Sketcher.Constraint("Equal", 7, 8))
sketch3.addConstraint(Sketcher.Constraint("Equal", 8, 9))
sketch3.addConstraint(Sketcher.Constraint("Equal", 9, 10))
sketch3.addConstraint(Sketcher.Constraint("Equal", 10, 11))
sketch3.addConstraint(Sketcher.Constraint("Equal", 11, 12))
sketch3.addConstraint(Sketcher.Constraint("Equal", 12, 13))
sketch3.addConstraint(Sketcher.Constraint("Equal", 13, 14))
sketch3.addConstraint(Sketcher.Constraint("Equal", 14, 15))
sketch3.addConstraint(Sketcher.Constraint("Horizontal", 0, 3, 1, 3))
sketch3.addConstraint(Sketcher.Constraint("Horizontal", 1, 3, 2, 3))
sketch3.addConstraint(Sketcher.Constraint("Horizontal", 2, 3, 3, 3))
sketch3.addConstraint(Sketcher.Constraint("Horizontal", 3, 3, 4, 3))
sketch3.addConstraint(Sketcher.Constraint("Horizontal", 4, 3, 5, 3))
sketch3.addConstraint(Sketcher.Constraint("Horizontal", 6, 3, 8, 3))
sketch3.addConstraint(Sketcher.Constraint("Horizontal", 7, 3, 9, 3))
sketch3.addConstraint(Sketcher.Constraint("Horizontal", 10, 3, 13, 3))
sketch3.addConstraint(Sketcher.Constraint("Horizontal", 11, 3, 14, 3))
sketch3.addConstraint(Sketcher.Constraint("Horizontal", 12, 3, 15, 3))
sketch3.addConstraint(Sketcher.Constraint("Vertical", 6, 3, 7, 3))
sketch3.addConstraint(Sketcher.Constraint("Vertical", 8, 3, 9, 3))
sketch3.addConstraint(Sketcher.Constraint("Vertical", 10, 3, 11, 3))
sketch3.addConstraint(Sketcher.Constraint("Vertical", 11, 3, 12, 3))
sketch3.addConstraint(Sketcher.Constraint("Vertical", 13, 3, 14, 3))
sketch3.addConstraint(Sketcher.Constraint("Vertical", 14, 3, 15, 3))
sketch3.addConstraint(Sketcher.Constraint("Diameter", 0, Q("0.25 in")))
sketch3.addConstraint(Sketcher.Constraint("DistanceX", 1, 3, 0, 3, Q("1 in")))
sketch3.addConstraint(Sketcher.Constraint("DistanceX", 0, 3, 2, 3, Q("1 in")))
sketch3.addConstraint(Sketcher.Constraint("DistanceX", 4, 3, 3, 3, Q("1 in")))
sketch3.addConstraint(Sketcher.Constraint("DistanceX", 3, 3, 5, 3, Q("1 in")))
sketch3.addConstraint(Sketcher.Constraint("DistanceY", 6, 3, 7, 3, Q("1 in")))
sketch3.addConstraint(Sketcher.Constraint("DistanceY", 10, 3, 11, 3, Q("1 in")))
sketch3.addConstraint(Sketcher.Constraint("DistanceY", 12, 3, 10, 3, Q("1 in")))
sketch3.addConstraint(Sketcher.Constraint("DistanceY", -1, 1, 10, 3, Q("1.75 in")))
sketch3.addConstraint(Sketcher.Constraint("DistanceY", 6, 3, 10, 3, Q("0.25 in")))
sketch3.addConstraint(Sketcher.Constraint("DistanceX", -1, 1, 0, 3, Q("5 in")))
sketch3.addConstraint(Sketcher.Constraint("DistanceX", -1, 1, 3, 3, Q("13 in")))
sketch3.addConstraint(Sketcher.Constraint("DistanceX", 10, 3, 6, 3, Q("3.5 in")))
sketch3.addConstraint(Sketcher.Constraint("DistanceX", 8, 3, 13, 3, Q("3.5 in")))
sketch3.addConstraint(Sketcher.Constraint("DistanceY", -1, 1, 0, 3, Q("0.875 in")))
sketch3.addConstraint(Sketcher.Constraint("DistanceX", -1, 1, 6, 3, Q("0.875 in")))
sketch3.addConstraint(Sketcher.Constraint("DistanceX", -1, 1, 8, 3, Q("17.125 in")))
sketch3.setExpression("Constraints[31]", "Params.sketch3_diameter")
pocket2 = body.newObject("PartDesign::Pocket", "Pocket001")
pocket2.Profile = sketch3
pocket2.setExpression("Length", "Params.pocket2_length")

# Sketch on XY plane
sketch4 = body.newObject("Sketcher::SketchObject", "Sketch003")
sketch4.AttachmentSupport = (doc.getObject("XY_Plane"), [""])
sketch4.MapMode = "FlatFace"
sketch4.AttachmentOffset = App.Placement(App.Vector(0, 0, 0.5 * 25.4), App.Rotation())
sketch4.addGeometry(Part.Circle(App.Vector(115.3, 36.9, 0), App.Vector(0, 0, 1), 1.6), False)
sketch4.addGeometry(Part.Circle(App.Vector(115.3, 83.7, 0), App.Vector(0, 0, 1), 1.6), False)
sketch4.addGeometry(Part.Circle(App.Vector(341.9, 36.9, 0), App.Vector(0, 0, 1), 1.6), False)
sketch4.addGeometry(Part.Circle(App.Vector(341.9, 83.7, 0), App.Vector(0, 0, 1), 1.6), False)
sketch4.addGeometry(Part.Circle(App.Vector(75, 83.7, 0), App.Vector(0, 0, 1), 1.6), False)
sketch4.addGeometry(Part.Circle(App.Vector(75, 36.9, 0), App.Vector(0, 0, 1), 1.6), False)
sketch4.addGeometry(Part.Circle(App.Vector(382.2, 36.9, 0), App.Vector(0, 0, 1), 1.6), False)
sketch4.addGeometry(Part.Circle(App.Vector(382.2, 83.7, 0), App.Vector(0, 0, 1), 1.6), False)
sketch4.addConstraint(Sketcher.Constraint("Equal", 0, 1))
sketch4.addConstraint(Sketcher.Constraint("Equal", 1, 2))
sketch4.addConstraint(Sketcher.Constraint("Equal", 2, 3))
sketch4.addConstraint(Sketcher.Constraint("Equal", 3, 4))
sketch4.addConstraint(Sketcher.Constraint("Equal", 4, 5))
sketch4.addConstraint(Sketcher.Constraint("Equal", 5, 6))
sketch4.addConstraint(Sketcher.Constraint("Equal", 6, 7))
sketch4.addConstraint(Sketcher.Constraint("Horizontal", 0, 3, 2, 3))
sketch4.addConstraint(Sketcher.Constraint("Horizontal", 1, 3, 3, 3))
sketch4.addConstraint(Sketcher.Constraint("Horizontal", 3, 3, 4, 3))
sketch4.addConstraint(Sketcher.Constraint("Horizontal", 2, 3, 5, 3))
sketch4.addConstraint(Sketcher.Constraint("Horizontal", 5, 3, 6, 3))
sketch4.addConstraint(Sketcher.Constraint("Horizontal", 4, 3, 7, 3))
sketch4.addConstraint(Sketcher.Constraint("Vertical", 0, 3, 1, 3))
sketch4.addConstraint(Sketcher.Constraint("Vertical", 2, 3, 3, 3))
sketch4.addConstraint(Sketcher.Constraint("Vertical", 4, 3, 5, 3))
sketch4.addConstraint(Sketcher.Constraint("Vertical", 6, 3, 7, 3))
sketch4.addConstraint(Sketcher.Constraint("Diameter", 0, Q("0.125 in")))
sketch4.addConstraint(Sketcher.Constraint("DistanceY", 0, 3, 1, 3, Q("1.843748 in")))
sketch4.addConstraint(Sketcher.Constraint("DistanceX", 4, 3, 1, 3, 40.2828))
sketch4.addConstraint(Sketcher.Constraint("DistanceX", 2, 3, 6, 3, 40.2828))
sketch4.addConstraint(Sketcher.Constraint("DistanceY", -1, 1, 0, 3, Q("1.453126 in")))
sketch4.addConstraint(Sketcher.Constraint("DistanceX", -1, 1, 4, 3, Q("2.953126 in")))
sketch4.addConstraint(Sketcher.Constraint("DistanceX", -1, 1, 6, 3, Q("15.046874 in")))
sketch4.setExpression("Constraints[17]", "Params.sketch4_diameter")
pocket3 = body.newObject("PartDesign::Pocket", "Pocket002")
pocket3.Profile = sketch4
pocket3.setExpression("Length", "Params.pocket3_length")

# Sketch on XY plane
sketch5 = body.newObject("Sketcher::SketchObject", "Sketch004")
sketch5.AttachmentSupport = (doc.getObject("XY_Plane"), [""])
sketch5.MapMode = "FlatFace"
sketch5.AttachmentOffset = App.Placement(App.Vector(0, 0, 0.5 * 25.4), App.Rotation())
sketch5.addGeometry(Part.Circle(App.Vector(215.9, 79.4, 0), App.Vector(0, 0, 1), 3.2), False)
sketch5.addGeometry(Part.Circle(App.Vector(241.3, 79.4, 0), App.Vector(0, 0, 1), 3.2), False)
sketch5.addConstraint(Sketcher.Constraint("Equal", 0, 1))
sketch5.addConstraint(Sketcher.Constraint("Horizontal", 0, 3, 1, 3))
sketch5.addConstraint(Sketcher.Constraint("Diameter", 0, Q("0.25 in")))
sketch5.addConstraint(Sketcher.Constraint("DistanceX", 0, 3, 1, 3, Q("1 in")))
sketch5.addConstraint(Sketcher.Constraint("DistanceX", -1, 1, 0, 3, Q("8.5 in")))
sketch5.addConstraint(Sketcher.Constraint("DistanceY", -1, 1, 0, 3, Q("3.125 in")))
sketch5.setExpression("Constraints[2]", "Params.sketch5_diameter")
pocket4 = body.newObject("PartDesign::Pocket", "Pocket003")
pocket4.Profile = sketch5
pocket4.setExpression("Length", "Params.pocket4_length")

doc.recompute()
